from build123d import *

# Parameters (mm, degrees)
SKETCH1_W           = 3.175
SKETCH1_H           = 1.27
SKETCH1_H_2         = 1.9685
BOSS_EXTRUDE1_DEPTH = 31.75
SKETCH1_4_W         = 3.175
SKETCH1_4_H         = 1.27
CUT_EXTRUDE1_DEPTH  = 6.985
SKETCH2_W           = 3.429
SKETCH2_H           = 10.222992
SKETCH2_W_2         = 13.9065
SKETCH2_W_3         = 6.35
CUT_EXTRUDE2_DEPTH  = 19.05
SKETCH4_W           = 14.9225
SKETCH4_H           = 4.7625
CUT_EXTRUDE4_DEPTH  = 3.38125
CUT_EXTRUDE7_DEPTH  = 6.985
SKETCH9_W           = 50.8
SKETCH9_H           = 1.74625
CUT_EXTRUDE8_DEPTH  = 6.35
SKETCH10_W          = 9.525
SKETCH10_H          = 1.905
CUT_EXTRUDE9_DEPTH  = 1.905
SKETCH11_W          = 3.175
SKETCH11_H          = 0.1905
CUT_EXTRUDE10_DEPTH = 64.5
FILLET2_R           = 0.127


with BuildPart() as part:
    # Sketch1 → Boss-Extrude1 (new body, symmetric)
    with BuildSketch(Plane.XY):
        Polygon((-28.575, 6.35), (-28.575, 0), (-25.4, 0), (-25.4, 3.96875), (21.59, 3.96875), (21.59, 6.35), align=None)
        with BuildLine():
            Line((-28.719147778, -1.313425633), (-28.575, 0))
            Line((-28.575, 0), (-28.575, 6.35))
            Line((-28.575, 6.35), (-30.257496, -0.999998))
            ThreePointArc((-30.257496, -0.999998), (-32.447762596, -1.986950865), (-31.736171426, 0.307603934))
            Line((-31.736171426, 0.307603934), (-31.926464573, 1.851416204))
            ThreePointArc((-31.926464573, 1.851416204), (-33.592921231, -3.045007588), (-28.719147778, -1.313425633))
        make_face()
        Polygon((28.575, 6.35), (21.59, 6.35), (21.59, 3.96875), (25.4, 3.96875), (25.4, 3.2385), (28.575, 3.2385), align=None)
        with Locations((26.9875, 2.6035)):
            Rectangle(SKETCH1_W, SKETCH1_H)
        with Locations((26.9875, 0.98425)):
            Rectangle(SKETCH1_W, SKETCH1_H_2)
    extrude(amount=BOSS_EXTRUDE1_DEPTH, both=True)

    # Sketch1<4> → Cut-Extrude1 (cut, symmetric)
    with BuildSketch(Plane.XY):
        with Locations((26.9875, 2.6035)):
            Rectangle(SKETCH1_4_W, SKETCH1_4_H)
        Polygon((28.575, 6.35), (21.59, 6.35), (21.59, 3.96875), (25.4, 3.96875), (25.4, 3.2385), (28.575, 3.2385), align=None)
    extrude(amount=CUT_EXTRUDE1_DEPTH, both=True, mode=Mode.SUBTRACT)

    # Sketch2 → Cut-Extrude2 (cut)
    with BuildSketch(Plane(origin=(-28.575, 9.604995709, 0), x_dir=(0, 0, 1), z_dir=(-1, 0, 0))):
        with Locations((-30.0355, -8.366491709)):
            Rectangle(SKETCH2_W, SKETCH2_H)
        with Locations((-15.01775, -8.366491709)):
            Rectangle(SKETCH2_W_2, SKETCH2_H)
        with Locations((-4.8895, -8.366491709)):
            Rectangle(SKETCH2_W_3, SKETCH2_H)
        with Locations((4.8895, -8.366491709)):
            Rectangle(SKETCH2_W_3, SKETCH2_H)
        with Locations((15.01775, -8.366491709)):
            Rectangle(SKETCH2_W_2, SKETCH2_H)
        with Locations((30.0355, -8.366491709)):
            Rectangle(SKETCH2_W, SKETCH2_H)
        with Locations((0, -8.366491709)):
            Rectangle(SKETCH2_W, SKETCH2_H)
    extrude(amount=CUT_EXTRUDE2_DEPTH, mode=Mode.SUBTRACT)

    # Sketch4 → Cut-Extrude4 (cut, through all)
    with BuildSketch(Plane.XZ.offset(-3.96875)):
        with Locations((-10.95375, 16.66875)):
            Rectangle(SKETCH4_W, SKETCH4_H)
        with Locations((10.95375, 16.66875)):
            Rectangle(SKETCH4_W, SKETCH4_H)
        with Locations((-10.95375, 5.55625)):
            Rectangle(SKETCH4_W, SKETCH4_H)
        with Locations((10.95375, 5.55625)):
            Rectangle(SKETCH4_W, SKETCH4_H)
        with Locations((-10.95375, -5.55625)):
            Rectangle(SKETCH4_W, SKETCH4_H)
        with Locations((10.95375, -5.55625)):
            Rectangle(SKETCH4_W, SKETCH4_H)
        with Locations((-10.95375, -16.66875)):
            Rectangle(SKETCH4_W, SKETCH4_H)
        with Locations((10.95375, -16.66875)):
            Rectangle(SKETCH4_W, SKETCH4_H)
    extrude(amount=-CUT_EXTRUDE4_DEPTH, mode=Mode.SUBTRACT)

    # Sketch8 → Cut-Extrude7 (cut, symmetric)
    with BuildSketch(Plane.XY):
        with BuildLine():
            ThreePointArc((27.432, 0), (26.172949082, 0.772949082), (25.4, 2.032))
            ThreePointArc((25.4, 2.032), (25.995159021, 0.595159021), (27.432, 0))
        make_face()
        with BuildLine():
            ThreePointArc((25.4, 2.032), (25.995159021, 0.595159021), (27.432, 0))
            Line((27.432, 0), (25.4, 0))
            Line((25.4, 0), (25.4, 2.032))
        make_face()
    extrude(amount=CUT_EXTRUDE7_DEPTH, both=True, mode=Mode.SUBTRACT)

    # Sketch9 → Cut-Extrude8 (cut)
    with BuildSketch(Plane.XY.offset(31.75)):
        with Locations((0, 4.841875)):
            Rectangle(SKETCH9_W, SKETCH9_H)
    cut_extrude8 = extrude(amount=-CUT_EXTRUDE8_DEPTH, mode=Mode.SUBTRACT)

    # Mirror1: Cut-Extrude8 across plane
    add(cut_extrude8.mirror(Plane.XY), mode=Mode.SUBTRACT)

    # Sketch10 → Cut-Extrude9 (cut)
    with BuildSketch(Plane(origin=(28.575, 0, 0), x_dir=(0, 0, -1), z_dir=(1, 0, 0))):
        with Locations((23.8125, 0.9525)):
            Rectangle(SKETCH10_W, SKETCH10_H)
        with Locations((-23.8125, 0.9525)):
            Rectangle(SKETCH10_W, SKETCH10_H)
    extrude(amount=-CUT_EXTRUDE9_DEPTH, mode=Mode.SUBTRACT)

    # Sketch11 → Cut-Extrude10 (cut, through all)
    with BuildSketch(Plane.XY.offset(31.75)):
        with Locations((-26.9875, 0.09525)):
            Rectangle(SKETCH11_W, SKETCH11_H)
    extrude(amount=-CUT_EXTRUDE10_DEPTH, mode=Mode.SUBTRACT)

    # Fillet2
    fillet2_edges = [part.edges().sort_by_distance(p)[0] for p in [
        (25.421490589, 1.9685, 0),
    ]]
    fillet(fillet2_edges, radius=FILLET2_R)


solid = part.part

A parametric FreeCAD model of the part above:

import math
import FreeCAD as App
import Part
import Sketcher

V = App.Vector
Q = App.Units.Quantity


def edges_at(feature, points):
    """Names of the edges that pass closest to the given points."""
    edges = feature.Shape.Edges
    near = lambda p: min(range(len(edges)), key=lambda i: edges[i].distToShape(Part.Vertex(*p))[0])
    return sorted({f"Edge{near(p) + 1}" for p in points})


def add_polygon(sketch, points):
    """Adds a closed chain of lines whose ends are joined by coincident constraints."""
    first, n = sketch.GeometryCount, len(points)
    for a, b in zip(points, points[1:] + points[:1]):
        sketch.addGeometry(Part.LineSegment(App.Vector(*a, 0), App.Vector(*b, 0)), False)
    for i in range(n):
        sketch.addConstraint(Sketcher.Constraint("Coincident", first + i, 2, first + (i + 1) % n, 1))

doc = App.newDocument("Part")
body = doc.addObject("PartDesign::Body", "Body")

sketch1 = body.newObject("Sketcher::SketchObject", "Sketch")
sketch1.AttachmentSupport = (doc.getObject("XY_Plane"), [""])
sketch1.MapMode = "FlatFace"
sketch1.addGeometry([
    Part.LineSegment(V(-28.6, 0, 0), V(-25.4, 0, 0)),
    Part.LineSegment(V(-25.4, 0, 0), V(-25.4, 4, 0)),
    Part.LineSegment(V(-25.4, 4, 0), V(25.4, 4, 0)),
    Part.LineSegment(V(25.4, 4, 0), V(25.4, 0, 0)),
    Part.LineSegment(V(25.4, 0, 0), V(28.6, 0, 0)),
    Part.LineSegment(V(28.6, 0, 0), V(28.6, 6.3, 0)),
    Part.LineSegment(V(28.6, 6.3, 0), V(-28.6, 6.3, 0)),
    Part.LineSegment(V(-28.6, 6.3, 0), V(-30.3, -1, 0)),
    Part.ArcOfCircle(Part.Circle(V(-31.6, -1, 0), V(0, 0, 1), 1.3), math.radians(97), math.radians(360)),
    Part.LineSegment(V(-31.7, 0.3, 0), V(-31.9, 1.9, 0)),
    Part.ArcOfCircle(Part.Circle(V(-31.6, -1, 0), V(0, 0, 1), 2.9), math.radians(97), math.radians(354)),
    Part.LineSegment(V(-28.7, -1.3, 0), V(-28.6, 0, 0)),
], False)
sketch1.addConstraint([
    Sketcher.Constraint("Coincident", 0, 2, 1, 1),
    Sketcher.Constraint("Coincident", 1, 2, 2, 1),
    Sketcher.Constraint("Coincident", 2, 2, 3, 1),
    Sketcher.Constraint("Coincident", 3, 2, 4, 1),
    Sketcher.Constraint("Coincident", 4, 2, 5, 1),
    Sketcher.Constraint("Coincident", 5, 2, 6, 1),
    Sketcher.Constraint("Coincident", 6, 2, 7, 1),
    Sketcher.Constraint("Coincident", 7, 2, 8, 2),
    Sketcher.Constraint("Coincident", 8, 1, 9, 1),
    Sketcher.Constraint("Coincident", 9, 2, 10, 1),
    Sketcher.Constraint("Tangent", 10, 2, 11, 1),
    Sketcher.Constraint("Coincident", 11, 2, 0, 1),
    Sketcher.Constraint("Horizontal", 0),
    Sketcher.Constraint("Vertical", 1),
    Sketcher.Constraint("Horizontal", 2),
    Sketcher.Constraint("Vertical", 3),
    Sketcher.Constraint("Horizontal", 4),
    Sketcher.Constraint("Vertical", 5),
    Sketcher.Constraint("Horizontal", 6),
    Sketcher.Constraint("Coincident", 10, 3, 8, 3),
    Sketcher.Constraint("Symmetric", 0, 2, 3, 2, -1, 1),
    Sketcher.Constraint("Symmetric", 4, 2, 11, 2, -2),
    Sketcher.Constraint("Horizontal", 10, 3, 7, 2),
    Sketcher.Constraint("Vertical", 6, 2, 11, 2),
    Sketcher.Constraint("DistanceX", 2, 1, 2, 2, Q("2 in")),
    Sketcher.Constraint("DistanceX", 6, 2, 6, 1, Q("2.25 in")),
    Sketcher.Constraint("DistanceY", 5, 1, 5, 2, Q("0.25 in")),
    Sketcher.Constraint("DistanceY", 1, 1, 1, 2, Q("0.15625 in")),
    Sketcher.Constraint("Radius", 8, 1.317498),
    Sketcher.Constraint("Radius", 10, 2.872994),
    Sketcher.Constraint("DistanceY", 8, 3, -1, 1, 0.999998),
    Sketcher.Constraint("DistanceY", 8, 3, 8, 1, 1.307602),
    Sketcher.Constraint("Distance", 7, 7.54011),
    Sketcher.Constraint("DistanceX", 9, 2, 8, 3, 0.351471),
])
pad1 = body.newObject("PartDesign::Pad", "Pad")
pad1.Profile = sketch1
pad1.Length = Q("2.5 in")
pad1.Midplane = True

sketch2 = body.newObject("Sketcher::SketchObject", "Sketch001")
sketch2.AttachmentSupport = (doc.getObject("XY_Plane"), [""])
sketch2.MapMode = "FlatFace"
add_polygon(sketch2, [(25.4, 2), (28.6, 2), (28.6, 6.3), (21.6, 6.3), (21.6, 4), (25.4, 4)])
sketch2.addConstraint([
    Sketcher.Constraint("Horizontal", 0),
    Sketcher.Constraint("Vertical", 1),
    Sketcher.Constraint("Horizontal", 2),
    Sketcher.Constraint("Vertical", 3),
    Sketcher.Constraint("Horizontal", 4),
    Sketcher.Constraint("Vertical", 5),
    Sketcher.Constraint("DistanceX", -1, 1, 4, 2, Q("1 in")),
    Sketcher.Constraint("DistanceX", 4, 1, 4, 2, Q("0.15 in")),
    Sketcher.Constraint("DistanceX", 0, 1, 0, 2, Q("0.125 in")),
    Sketcher.Constraint("DistanceY", 3, 2, 3, 1, Q("0.09375 in")),
    Sketcher.Constraint("DistanceY", -1, 1, 1, 2, Q("0.25 in")),
    Sketcher.Constraint("DistanceY", 1, 1, 1, 2, Q("0.1725 in")),
])
pocket1 = body.newObject("PartDesign::Pocket", "Pocket")
pocket1.Profile = sketch2
pocket1.Length = Q("0.55 in")
pocket1.Midplane = True

sketch3 = body.newObject("Sketcher::SketchObject", "Sketch002")
sketch3.AttachmentSupport = (doc.getObject("YZ_Plane"), [""])
sketch3.MapMode = "FlatFace"
sketch3.AttachmentOffset = App.Placement(V(0, 0, -1.125 * 25.4), App.Rotation())
add_polygon(sketch3, [(6.3, -31.8), (-3.9, -31.8), (-3.9, -28.3), (6.3, -28.3)])
add_polygon(sketch3, [(6.3, -22), (-3.9, -22), (-3.9, 22), (6.3, 22)])
add_polygon(sketch3, [(6.3, 28.3), (-3.9, 28.3), (-3.9, 31.8), (6.3, 31.8)])
sketch3.addConstraint([
    Sketcher.Constraint("Horizontal", 0),
    Sketcher.Constraint("Vertical", 1),
    Sketcher.Constraint("Horizontal", 2),
    Sketcher.Constraint("Vertical", 3),
    Sketcher.Constraint("Horizontal", 4),
    Sketcher.Constraint("Vertical", 5),
    Sketcher.Constraint("Horizontal", 6),
    Sketcher.Constraint("Vertical", 7),
    Sketcher.Constraint("Horizontal", 8),
    Sketcher.Constraint("Vertical", 9),
    Sketcher.Constraint("Horizontal", 10),
    Sketcher.Constraint("Vertical", 11),
    Sketcher.Constraint("Symmetric", 1, 2, 8, 2, -1),
    Sketcher.Constraint("Symmetric", 3, 2, 10, 2, -1),
    Sketcher.Constraint("Vertical", 1, 2, 4, 2),
    Sketcher.Constraint("Vertical", 3, 2, 6, 2),
    Sketcher.Constraint("DistanceY", 5, 1, 5, 2, Q("1.73 in")),
    Sketcher.Constraint("DistanceY", 1, 1, 1, 2, Q("0.135 in")),
    Sketcher.Constraint("DistanceY", 0, 2, -1, 1, Q("1.25 in")),
    Sketcher.Constraint("DistanceX", -1, 1, 2, 2, Q("0.25 in")),
    Sketcher.Constraint("DistanceY", 1, 2, 4, 2, Q("0.25 in")),
    Sketcher.Constraint("DistanceX", 0, 2, 0, 1, 10.222992),
])
pocket2 = body.newObject("PartDesign::Pocket", "Pocket001")
pocket2.Profile = sketch3
pocket2.Length = Q("0.75 in")

sketch4 = body.newObject("Sketcher::SketchObject", "Sketch003")
sketch4.AttachmentSupport = (doc.getObject("XZ_Plane"), [""])
sketch4.MapMode = "FlatFace"
sketch4.AttachmentOffset = App.Placement(V(0, 0, -0.15625 * 25.4), App.Rotation())
add_polygon(sketch4, [(-18.4, 19.1), (-18.4, 14.3), (-3.5, 14.3), (-3.5, 19.1)])
add_polygon(sketch4, [(3.5, 19.1), (3.5, 14.3), (18.4, 14.3), (18.4, 19.1)])
add_polygon(sketch4, [(-18.4, 7.9), (-18.4, 3.2), (-3.5, 3.2), (-3.5, 7.9)])
add_polygon(sketch4, [(3.5, 7.9), (3.5, 3.2), (18.4, 3.2), (18.4, 7.9)])
add_polygon(sketch4, [(-18.4, -3.2), (-18.4, -7.9), (-3.5, -7.9), (-3.5, -3.2)])
add_polygon(sketch4, [(3.5, -3.2), (3.5, -7.9), (18.4, -7.9), (18.4, -3.2)])
add_polygon(sketch4, [(-18.4, -14.3), (-18.4, -19.1), (-3.5, -19.1), (-3.5, -14.3)])
add_polygon(sketch4, [(3.5, -14.3), (3.5, -19.1), (18.4, -19.1), (18.4, -14.3)])
sketch4.addConstraint([
    Sketcher.Constraint("Vertical", 0),
    Sketcher.Constraint("Horizontal", 1),
    Sketcher.Constraint("Vertical", 2),
    Sketcher.Constraint("Horizontal", 3),
    Sketcher.Constraint("Vertical", 4),
    Sketcher.Constraint("Horizontal", 5),
    Sketcher.Constraint("Vertical", 6),
    Sketcher.Constraint("Horizontal", 7),
    Sketcher.Constraint("Vertical", 8),
    Sketcher.Constraint("Horizontal", 9),
    Sketcher.Constraint("Vertical", 10),
    Sketcher.Constraint("Horizontal", 11),
    Sketcher.Constraint("Vertical", 12),
    Sketcher.Constraint("Horizontal", 13),
    Sketcher.Constraint("Vertical", 14),
    Sketcher.Constraint("Horizontal", 15),
    Sketcher.Constraint("Vertical", 16),
    Sketcher.Constraint("Horizontal", 17),
    Sketcher.Constraint("Vertical", 18),
    Sketcher.Constraint("Horizontal", 19),
    Sketcher.Constraint("Vertical", 20),
    Sketcher.Constraint("Horizontal", 21),
    Sketcher.Constraint("Vertical", 22),
    Sketcher.Constraint("Horizontal", 23),
    Sketcher.Constraint("Vertical", 24),
    Sketcher.Constraint("Horizontal", 25),
    Sketcher.Constraint("Vertical", 26),
    Sketcher.Constraint("Horizontal", 27),
    Sketcher.Constraint("Vertical", 28),
    Sketcher.Constraint("Horizontal", 29),
    Sketcher.Constraint("Vertical", 30),
    Sketcher.Constraint("Horizontal", 31),
    Sketcher.Constraint("Symmetric", 14, 2, 16, 2, -1, 1),
    Sketcher.Constraint("Symmetric", 12, 2, 18, 2, -1, 1),
    Sketcher.Constraint("Symmetric", 10, 2, 20, 2, -1, 1),
    Sketcher.Constraint("Symmetric", 8, 2, 22, 2, -1, 1),
    Sketcher.Constraint("Symmetric", 6, 2, 24, 2, -1, 1),
    Sketcher.Constraint("Symmetric", 4, 2, 26, 2, -1, 1),
    Sketcher.Constraint("Symmetric", 2, 2, 28, 2, -1, 1),
    Sketcher.Constraint("Symmetric", 0, 2, 30, 2, -1, 1),
    Sketcher.Constraint("Symmetric", 1, 2, 4, 2, -2),
    Sketcher.Constraint("Symmetric", 3, 2, 6, 2, -2),
    Sketcher.Constraint("Symmetric", 9, 2, 12, 2, -2),
    Sketcher.Constraint("Symmetric", 11, 2, 14, 2, -2),
    Sketcher.Constraint("Vertical", 3, 2, 8, 2),
    Sketcher.Constraint("Vertical", 2, 2, 9, 2),
    Sketcher.Constraint("Equal", 6, 8),
    Sketcher.Constraint("DistanceY", 0, 2, 0, 1, Q("0.1875 in")),
    Sketcher.Constraint("DistanceY", -1, 1, 2, 2, Q("0.75 in")),
    Sketcher.Constraint("DistanceX", 0, 2, 5, 2, Q("1.45 in")),
    Sketcher.Constraint("DistanceY", 10, 2, 1, 2, Q("0.25 in")),
    Sketcher.Constraint("DistanceX", 1, 1, 1, 2, Q("0.5875 in")),
])
pocket3 = body.newObject("PartDesign::Pocket", "Pocket002")
pocket3.Profile = sketch4
pocket3.Type = "ThroughAll"

sketch5 = body.newObject("Sketcher::SketchObject", "Sketch004")
sketch5.AttachmentSupport = (doc.getObject("XY_Plane"), [""])
sketch5.MapMode = "FlatFace"
sketch5.addGeometry([
    Part.ArcOfCircle(Part.Circle(V(28.4, 3, 0), V(0, 0, 1), 3.2), math.radians(-162), math.radians(-108)),
    Part.LineSegment(V(25.4, 2, 0), V(25.4, 0, 0)),
    Part.LineSegment(V(25.4, 0, 0), V(27.4, 0, 0)),
], False)
sketch5.addConstraint([
    Sketcher.Constraint("Coincident", 0, 1, 1, 1),
    Sketcher.Constraint("Coincident", 1, 2, 2, 1),
    Sketcher.Constraint("Coincident", 2, 2, 0, 2),
    Sketcher.Constraint("Vertical", 1),
    Sketcher.Constraint("Horizontal", 2),
    Sketcher.Constraint("PointOnObject", 1, 2, -1),
    Sketcher.Constraint("Equal", 2, 1),
    Sketcher.Constraint("DistanceX", -1, 1, 0, 1, Q("1 in")),
    Sketcher.Constraint("Radius", 0, Q("0.125 in")),
    Sketcher.Constraint("DistanceX", 2, 1, 2, 2, Q("0.08 in")),
])
pocket4 = body.newObject("PartDesign::Pocket", "Pocket003")
pocket4.Profile = sketch5
pocket4.Length = Q("0.55 in")
pocket4.Midplane = True

sketch6 = body.newObject("Sketcher::SketchObject", "Sketch005")
sketch6.AttachmentSupport = (doc.getObject("XY_Plane"), [""])
sketch6.MapMode = "FlatFace"
sketch6.AttachmentOffset = App.Placement(V(0, 0, 1.25 * 25.4), App.Rotation())
add_polygon(sketch6, [(-25.4, 5.7), (-25.4, 4), (25.4, 4), (25.4, 5.7)])
sketch6.addConstraint([
    Sketcher.Constraint("Vertical", 0),
    Sketcher.Constraint("Horizontal", 1),
    Sketcher.Constraint("Vertical", 2),
    Sketcher.Constraint("Horizontal", 3),
    Sketcher.Constraint("DistanceX", 1, 1, 1, 2, Q("2 in")),
    Sketcher.Constraint("DistanceX", 0, 2, -1, 1, Q("1 in")),
    Sketcher.Constraint("DistanceY", -1, 1, 0, 2, Q("0.15625 in")),
    Sketcher.Constraint("DistanceY", -1, 1, 2, 2, Q("0.225 in")),
])
pocket5 = body.newObject("PartDesign::Pocket", "Pocket004")
pocket5.Profile = sketch6
pocket5.Length = Q("0.25 in")
doc.recompute()

mirrored = body.newObject("PartDesign::Mirrored", "Mirrored")
mirrored.Originals = [pocket5]
mirrored.MirrorPlane = (doc.getObject("XY_Plane"), [""])
body.Tip = mirrored

sketch7 = body.newObject("Sketcher::SketchObject", "Sketch006")
sketch7.AttachmentSupport = (doc.getObject("YZ_Plane"), [""])
sketch7.MapMode = "FlatFace"
sketch7.AttachmentOffset = App.Placement(V(0, 0, 1.125 * 25.4), App.Rotation())
add_polygon(sketch7, [(1.9, -19.1), (0, -19.1), (0, -28.6), (1.9, -28.6)])
add_polygon(sketch7, [(1.9, 28.6), (0, 28.6), (0, 19.1), (1.9, 19.1)])
sketch7.addConstraint([
    Sketcher.Constraint("Horizontal", 0),
    Sketcher.Constraint("Vertical", 1),
    Sketcher.Constraint("Horizontal", 2),
    Sketcher.Constraint("Vertical", 3),
    Sketcher.Constraint("Horizontal", 4),
    Sketcher.Constraint("Vertical", 5),
    Sketcher.Constraint("Horizontal", 6),
    Sketcher.Constraint("Vertical", 7),
    Sketcher.Constraint("Symmetric", 1, 2, 4, 2, -1, 1),
    Sketcher.Constraint("Symmetric", 0, 2, 5, 2, -1),
    Sketcher.Constraint("Vertical", 3, 2, 6, 2),
    Sketcher.Constraint("DistanceY", 0, 2, 5, 2, Q("1.5 in")),
    Sketcher.Constraint("DistanceX", 0, 2, 0, 1, Q("0.075 in")),
    Sketcher.Constraint("DistanceY", 1, 2, 1, 1, Q("0.375 in")),
])
pocket6 = body.newObject("PartDesign::Pocket", "Pocket005")
pocket6.Profile = sketch7
pocket6.Length = Q("0.075 in")

sketch8 = body.newObject("Sketcher::SketchObject", "Sketch007")
sketch8.AttachmentSupport = (doc.getObject("XY_Plane"), [""])
sketch8.MapMode = "FlatFace"
sketch8.AttachmentOffset = App.Placement(V(0, 0, 1.25 * 25.4), App.Rotation())
add_polygon(sketch8, [(-28.57, 0.19), (-28.57, 0), (-25.4, 0), (-25.4, 0.19)])
sketch8.addConstraint([
    Sketcher.Constraint("Vertical", 0),
    Sketcher.Constraint("Horizontal", 1),
    Sketcher.Constraint("Vertical", 2),
    Sketcher.Constraint("Horizontal", 3),
    Sketcher.Constraint("PointOnObject", 0, 2, -1),
    Sketcher.Constraint("DistanceX", 1, 2, -1, 1, Q("1 in")),
    Sketcher.Constraint("DistanceX", 1, 1, 1, 2, Q("0.125 in")),
    Sketcher.Constraint("DistanceY", 0, 2, 0, 1, Q("0.0075 in")),
])
pocket7 = body.newObject("PartDesign::Pocket", "Pocket006")
pocket7.Profile = sketch8
pocket7.Type = "ThroughAll"
doc.recompute()

fillet = body.newObject("PartDesign::Fillet", "Fillet")
fillet.Base = (pocket7, edges_at(pocket7, [(25.421, 1.968, 0)]))
fillet.Radius = Q("0.005 in")

doc.recompute()
